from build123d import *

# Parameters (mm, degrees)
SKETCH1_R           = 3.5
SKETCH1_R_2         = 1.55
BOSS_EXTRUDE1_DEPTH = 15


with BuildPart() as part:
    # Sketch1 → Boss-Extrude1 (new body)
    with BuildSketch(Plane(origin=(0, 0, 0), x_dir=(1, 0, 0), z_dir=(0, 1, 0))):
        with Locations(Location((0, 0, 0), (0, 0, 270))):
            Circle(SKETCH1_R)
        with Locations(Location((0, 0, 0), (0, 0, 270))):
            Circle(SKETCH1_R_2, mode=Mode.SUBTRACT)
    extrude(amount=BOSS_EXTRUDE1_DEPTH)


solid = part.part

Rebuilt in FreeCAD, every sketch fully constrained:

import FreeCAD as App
import Part
import Sketcher
from FreeCAD import Vector

doc = App.newDocument("Part")
body = doc.addObject("PartDesign::Body", "Body")

# Sketch on XZ plane
sketch1 = body.newObject("Sketcher::SketchObject", "Sketch")
sketch1.AttachmentSupport = (doc.getObject("XZ_Plane"), [""])
sketch1.MapMode = "FlatFace"
sketch1.addGeometry([
    Part.Circle(Vector(0, 0, 0), Vector(0, 0, 1), 3.5),
    Part.Circle(Vector(0, 0, 0), Vector(0, 0, 1), 1.6),
], False)
sketch1.addConstraint([
    Sketcher.Constraint("Coincident", 0, 3, -1, 1),
    Sketcher.Constraint("Coincident", 1, 3, -1, 1),
    Sketcher.Constraint("Diameter", 0, 7.0),
    Sketcher.Constraint("Diameter", 1, 3.1),
])
pad1 = body.newObject("PartDesign::Pad", "Pad")
pad1.Profile = sketch1
pad1.Length = 15
pad1.Reversed = True

doc.recompute()
